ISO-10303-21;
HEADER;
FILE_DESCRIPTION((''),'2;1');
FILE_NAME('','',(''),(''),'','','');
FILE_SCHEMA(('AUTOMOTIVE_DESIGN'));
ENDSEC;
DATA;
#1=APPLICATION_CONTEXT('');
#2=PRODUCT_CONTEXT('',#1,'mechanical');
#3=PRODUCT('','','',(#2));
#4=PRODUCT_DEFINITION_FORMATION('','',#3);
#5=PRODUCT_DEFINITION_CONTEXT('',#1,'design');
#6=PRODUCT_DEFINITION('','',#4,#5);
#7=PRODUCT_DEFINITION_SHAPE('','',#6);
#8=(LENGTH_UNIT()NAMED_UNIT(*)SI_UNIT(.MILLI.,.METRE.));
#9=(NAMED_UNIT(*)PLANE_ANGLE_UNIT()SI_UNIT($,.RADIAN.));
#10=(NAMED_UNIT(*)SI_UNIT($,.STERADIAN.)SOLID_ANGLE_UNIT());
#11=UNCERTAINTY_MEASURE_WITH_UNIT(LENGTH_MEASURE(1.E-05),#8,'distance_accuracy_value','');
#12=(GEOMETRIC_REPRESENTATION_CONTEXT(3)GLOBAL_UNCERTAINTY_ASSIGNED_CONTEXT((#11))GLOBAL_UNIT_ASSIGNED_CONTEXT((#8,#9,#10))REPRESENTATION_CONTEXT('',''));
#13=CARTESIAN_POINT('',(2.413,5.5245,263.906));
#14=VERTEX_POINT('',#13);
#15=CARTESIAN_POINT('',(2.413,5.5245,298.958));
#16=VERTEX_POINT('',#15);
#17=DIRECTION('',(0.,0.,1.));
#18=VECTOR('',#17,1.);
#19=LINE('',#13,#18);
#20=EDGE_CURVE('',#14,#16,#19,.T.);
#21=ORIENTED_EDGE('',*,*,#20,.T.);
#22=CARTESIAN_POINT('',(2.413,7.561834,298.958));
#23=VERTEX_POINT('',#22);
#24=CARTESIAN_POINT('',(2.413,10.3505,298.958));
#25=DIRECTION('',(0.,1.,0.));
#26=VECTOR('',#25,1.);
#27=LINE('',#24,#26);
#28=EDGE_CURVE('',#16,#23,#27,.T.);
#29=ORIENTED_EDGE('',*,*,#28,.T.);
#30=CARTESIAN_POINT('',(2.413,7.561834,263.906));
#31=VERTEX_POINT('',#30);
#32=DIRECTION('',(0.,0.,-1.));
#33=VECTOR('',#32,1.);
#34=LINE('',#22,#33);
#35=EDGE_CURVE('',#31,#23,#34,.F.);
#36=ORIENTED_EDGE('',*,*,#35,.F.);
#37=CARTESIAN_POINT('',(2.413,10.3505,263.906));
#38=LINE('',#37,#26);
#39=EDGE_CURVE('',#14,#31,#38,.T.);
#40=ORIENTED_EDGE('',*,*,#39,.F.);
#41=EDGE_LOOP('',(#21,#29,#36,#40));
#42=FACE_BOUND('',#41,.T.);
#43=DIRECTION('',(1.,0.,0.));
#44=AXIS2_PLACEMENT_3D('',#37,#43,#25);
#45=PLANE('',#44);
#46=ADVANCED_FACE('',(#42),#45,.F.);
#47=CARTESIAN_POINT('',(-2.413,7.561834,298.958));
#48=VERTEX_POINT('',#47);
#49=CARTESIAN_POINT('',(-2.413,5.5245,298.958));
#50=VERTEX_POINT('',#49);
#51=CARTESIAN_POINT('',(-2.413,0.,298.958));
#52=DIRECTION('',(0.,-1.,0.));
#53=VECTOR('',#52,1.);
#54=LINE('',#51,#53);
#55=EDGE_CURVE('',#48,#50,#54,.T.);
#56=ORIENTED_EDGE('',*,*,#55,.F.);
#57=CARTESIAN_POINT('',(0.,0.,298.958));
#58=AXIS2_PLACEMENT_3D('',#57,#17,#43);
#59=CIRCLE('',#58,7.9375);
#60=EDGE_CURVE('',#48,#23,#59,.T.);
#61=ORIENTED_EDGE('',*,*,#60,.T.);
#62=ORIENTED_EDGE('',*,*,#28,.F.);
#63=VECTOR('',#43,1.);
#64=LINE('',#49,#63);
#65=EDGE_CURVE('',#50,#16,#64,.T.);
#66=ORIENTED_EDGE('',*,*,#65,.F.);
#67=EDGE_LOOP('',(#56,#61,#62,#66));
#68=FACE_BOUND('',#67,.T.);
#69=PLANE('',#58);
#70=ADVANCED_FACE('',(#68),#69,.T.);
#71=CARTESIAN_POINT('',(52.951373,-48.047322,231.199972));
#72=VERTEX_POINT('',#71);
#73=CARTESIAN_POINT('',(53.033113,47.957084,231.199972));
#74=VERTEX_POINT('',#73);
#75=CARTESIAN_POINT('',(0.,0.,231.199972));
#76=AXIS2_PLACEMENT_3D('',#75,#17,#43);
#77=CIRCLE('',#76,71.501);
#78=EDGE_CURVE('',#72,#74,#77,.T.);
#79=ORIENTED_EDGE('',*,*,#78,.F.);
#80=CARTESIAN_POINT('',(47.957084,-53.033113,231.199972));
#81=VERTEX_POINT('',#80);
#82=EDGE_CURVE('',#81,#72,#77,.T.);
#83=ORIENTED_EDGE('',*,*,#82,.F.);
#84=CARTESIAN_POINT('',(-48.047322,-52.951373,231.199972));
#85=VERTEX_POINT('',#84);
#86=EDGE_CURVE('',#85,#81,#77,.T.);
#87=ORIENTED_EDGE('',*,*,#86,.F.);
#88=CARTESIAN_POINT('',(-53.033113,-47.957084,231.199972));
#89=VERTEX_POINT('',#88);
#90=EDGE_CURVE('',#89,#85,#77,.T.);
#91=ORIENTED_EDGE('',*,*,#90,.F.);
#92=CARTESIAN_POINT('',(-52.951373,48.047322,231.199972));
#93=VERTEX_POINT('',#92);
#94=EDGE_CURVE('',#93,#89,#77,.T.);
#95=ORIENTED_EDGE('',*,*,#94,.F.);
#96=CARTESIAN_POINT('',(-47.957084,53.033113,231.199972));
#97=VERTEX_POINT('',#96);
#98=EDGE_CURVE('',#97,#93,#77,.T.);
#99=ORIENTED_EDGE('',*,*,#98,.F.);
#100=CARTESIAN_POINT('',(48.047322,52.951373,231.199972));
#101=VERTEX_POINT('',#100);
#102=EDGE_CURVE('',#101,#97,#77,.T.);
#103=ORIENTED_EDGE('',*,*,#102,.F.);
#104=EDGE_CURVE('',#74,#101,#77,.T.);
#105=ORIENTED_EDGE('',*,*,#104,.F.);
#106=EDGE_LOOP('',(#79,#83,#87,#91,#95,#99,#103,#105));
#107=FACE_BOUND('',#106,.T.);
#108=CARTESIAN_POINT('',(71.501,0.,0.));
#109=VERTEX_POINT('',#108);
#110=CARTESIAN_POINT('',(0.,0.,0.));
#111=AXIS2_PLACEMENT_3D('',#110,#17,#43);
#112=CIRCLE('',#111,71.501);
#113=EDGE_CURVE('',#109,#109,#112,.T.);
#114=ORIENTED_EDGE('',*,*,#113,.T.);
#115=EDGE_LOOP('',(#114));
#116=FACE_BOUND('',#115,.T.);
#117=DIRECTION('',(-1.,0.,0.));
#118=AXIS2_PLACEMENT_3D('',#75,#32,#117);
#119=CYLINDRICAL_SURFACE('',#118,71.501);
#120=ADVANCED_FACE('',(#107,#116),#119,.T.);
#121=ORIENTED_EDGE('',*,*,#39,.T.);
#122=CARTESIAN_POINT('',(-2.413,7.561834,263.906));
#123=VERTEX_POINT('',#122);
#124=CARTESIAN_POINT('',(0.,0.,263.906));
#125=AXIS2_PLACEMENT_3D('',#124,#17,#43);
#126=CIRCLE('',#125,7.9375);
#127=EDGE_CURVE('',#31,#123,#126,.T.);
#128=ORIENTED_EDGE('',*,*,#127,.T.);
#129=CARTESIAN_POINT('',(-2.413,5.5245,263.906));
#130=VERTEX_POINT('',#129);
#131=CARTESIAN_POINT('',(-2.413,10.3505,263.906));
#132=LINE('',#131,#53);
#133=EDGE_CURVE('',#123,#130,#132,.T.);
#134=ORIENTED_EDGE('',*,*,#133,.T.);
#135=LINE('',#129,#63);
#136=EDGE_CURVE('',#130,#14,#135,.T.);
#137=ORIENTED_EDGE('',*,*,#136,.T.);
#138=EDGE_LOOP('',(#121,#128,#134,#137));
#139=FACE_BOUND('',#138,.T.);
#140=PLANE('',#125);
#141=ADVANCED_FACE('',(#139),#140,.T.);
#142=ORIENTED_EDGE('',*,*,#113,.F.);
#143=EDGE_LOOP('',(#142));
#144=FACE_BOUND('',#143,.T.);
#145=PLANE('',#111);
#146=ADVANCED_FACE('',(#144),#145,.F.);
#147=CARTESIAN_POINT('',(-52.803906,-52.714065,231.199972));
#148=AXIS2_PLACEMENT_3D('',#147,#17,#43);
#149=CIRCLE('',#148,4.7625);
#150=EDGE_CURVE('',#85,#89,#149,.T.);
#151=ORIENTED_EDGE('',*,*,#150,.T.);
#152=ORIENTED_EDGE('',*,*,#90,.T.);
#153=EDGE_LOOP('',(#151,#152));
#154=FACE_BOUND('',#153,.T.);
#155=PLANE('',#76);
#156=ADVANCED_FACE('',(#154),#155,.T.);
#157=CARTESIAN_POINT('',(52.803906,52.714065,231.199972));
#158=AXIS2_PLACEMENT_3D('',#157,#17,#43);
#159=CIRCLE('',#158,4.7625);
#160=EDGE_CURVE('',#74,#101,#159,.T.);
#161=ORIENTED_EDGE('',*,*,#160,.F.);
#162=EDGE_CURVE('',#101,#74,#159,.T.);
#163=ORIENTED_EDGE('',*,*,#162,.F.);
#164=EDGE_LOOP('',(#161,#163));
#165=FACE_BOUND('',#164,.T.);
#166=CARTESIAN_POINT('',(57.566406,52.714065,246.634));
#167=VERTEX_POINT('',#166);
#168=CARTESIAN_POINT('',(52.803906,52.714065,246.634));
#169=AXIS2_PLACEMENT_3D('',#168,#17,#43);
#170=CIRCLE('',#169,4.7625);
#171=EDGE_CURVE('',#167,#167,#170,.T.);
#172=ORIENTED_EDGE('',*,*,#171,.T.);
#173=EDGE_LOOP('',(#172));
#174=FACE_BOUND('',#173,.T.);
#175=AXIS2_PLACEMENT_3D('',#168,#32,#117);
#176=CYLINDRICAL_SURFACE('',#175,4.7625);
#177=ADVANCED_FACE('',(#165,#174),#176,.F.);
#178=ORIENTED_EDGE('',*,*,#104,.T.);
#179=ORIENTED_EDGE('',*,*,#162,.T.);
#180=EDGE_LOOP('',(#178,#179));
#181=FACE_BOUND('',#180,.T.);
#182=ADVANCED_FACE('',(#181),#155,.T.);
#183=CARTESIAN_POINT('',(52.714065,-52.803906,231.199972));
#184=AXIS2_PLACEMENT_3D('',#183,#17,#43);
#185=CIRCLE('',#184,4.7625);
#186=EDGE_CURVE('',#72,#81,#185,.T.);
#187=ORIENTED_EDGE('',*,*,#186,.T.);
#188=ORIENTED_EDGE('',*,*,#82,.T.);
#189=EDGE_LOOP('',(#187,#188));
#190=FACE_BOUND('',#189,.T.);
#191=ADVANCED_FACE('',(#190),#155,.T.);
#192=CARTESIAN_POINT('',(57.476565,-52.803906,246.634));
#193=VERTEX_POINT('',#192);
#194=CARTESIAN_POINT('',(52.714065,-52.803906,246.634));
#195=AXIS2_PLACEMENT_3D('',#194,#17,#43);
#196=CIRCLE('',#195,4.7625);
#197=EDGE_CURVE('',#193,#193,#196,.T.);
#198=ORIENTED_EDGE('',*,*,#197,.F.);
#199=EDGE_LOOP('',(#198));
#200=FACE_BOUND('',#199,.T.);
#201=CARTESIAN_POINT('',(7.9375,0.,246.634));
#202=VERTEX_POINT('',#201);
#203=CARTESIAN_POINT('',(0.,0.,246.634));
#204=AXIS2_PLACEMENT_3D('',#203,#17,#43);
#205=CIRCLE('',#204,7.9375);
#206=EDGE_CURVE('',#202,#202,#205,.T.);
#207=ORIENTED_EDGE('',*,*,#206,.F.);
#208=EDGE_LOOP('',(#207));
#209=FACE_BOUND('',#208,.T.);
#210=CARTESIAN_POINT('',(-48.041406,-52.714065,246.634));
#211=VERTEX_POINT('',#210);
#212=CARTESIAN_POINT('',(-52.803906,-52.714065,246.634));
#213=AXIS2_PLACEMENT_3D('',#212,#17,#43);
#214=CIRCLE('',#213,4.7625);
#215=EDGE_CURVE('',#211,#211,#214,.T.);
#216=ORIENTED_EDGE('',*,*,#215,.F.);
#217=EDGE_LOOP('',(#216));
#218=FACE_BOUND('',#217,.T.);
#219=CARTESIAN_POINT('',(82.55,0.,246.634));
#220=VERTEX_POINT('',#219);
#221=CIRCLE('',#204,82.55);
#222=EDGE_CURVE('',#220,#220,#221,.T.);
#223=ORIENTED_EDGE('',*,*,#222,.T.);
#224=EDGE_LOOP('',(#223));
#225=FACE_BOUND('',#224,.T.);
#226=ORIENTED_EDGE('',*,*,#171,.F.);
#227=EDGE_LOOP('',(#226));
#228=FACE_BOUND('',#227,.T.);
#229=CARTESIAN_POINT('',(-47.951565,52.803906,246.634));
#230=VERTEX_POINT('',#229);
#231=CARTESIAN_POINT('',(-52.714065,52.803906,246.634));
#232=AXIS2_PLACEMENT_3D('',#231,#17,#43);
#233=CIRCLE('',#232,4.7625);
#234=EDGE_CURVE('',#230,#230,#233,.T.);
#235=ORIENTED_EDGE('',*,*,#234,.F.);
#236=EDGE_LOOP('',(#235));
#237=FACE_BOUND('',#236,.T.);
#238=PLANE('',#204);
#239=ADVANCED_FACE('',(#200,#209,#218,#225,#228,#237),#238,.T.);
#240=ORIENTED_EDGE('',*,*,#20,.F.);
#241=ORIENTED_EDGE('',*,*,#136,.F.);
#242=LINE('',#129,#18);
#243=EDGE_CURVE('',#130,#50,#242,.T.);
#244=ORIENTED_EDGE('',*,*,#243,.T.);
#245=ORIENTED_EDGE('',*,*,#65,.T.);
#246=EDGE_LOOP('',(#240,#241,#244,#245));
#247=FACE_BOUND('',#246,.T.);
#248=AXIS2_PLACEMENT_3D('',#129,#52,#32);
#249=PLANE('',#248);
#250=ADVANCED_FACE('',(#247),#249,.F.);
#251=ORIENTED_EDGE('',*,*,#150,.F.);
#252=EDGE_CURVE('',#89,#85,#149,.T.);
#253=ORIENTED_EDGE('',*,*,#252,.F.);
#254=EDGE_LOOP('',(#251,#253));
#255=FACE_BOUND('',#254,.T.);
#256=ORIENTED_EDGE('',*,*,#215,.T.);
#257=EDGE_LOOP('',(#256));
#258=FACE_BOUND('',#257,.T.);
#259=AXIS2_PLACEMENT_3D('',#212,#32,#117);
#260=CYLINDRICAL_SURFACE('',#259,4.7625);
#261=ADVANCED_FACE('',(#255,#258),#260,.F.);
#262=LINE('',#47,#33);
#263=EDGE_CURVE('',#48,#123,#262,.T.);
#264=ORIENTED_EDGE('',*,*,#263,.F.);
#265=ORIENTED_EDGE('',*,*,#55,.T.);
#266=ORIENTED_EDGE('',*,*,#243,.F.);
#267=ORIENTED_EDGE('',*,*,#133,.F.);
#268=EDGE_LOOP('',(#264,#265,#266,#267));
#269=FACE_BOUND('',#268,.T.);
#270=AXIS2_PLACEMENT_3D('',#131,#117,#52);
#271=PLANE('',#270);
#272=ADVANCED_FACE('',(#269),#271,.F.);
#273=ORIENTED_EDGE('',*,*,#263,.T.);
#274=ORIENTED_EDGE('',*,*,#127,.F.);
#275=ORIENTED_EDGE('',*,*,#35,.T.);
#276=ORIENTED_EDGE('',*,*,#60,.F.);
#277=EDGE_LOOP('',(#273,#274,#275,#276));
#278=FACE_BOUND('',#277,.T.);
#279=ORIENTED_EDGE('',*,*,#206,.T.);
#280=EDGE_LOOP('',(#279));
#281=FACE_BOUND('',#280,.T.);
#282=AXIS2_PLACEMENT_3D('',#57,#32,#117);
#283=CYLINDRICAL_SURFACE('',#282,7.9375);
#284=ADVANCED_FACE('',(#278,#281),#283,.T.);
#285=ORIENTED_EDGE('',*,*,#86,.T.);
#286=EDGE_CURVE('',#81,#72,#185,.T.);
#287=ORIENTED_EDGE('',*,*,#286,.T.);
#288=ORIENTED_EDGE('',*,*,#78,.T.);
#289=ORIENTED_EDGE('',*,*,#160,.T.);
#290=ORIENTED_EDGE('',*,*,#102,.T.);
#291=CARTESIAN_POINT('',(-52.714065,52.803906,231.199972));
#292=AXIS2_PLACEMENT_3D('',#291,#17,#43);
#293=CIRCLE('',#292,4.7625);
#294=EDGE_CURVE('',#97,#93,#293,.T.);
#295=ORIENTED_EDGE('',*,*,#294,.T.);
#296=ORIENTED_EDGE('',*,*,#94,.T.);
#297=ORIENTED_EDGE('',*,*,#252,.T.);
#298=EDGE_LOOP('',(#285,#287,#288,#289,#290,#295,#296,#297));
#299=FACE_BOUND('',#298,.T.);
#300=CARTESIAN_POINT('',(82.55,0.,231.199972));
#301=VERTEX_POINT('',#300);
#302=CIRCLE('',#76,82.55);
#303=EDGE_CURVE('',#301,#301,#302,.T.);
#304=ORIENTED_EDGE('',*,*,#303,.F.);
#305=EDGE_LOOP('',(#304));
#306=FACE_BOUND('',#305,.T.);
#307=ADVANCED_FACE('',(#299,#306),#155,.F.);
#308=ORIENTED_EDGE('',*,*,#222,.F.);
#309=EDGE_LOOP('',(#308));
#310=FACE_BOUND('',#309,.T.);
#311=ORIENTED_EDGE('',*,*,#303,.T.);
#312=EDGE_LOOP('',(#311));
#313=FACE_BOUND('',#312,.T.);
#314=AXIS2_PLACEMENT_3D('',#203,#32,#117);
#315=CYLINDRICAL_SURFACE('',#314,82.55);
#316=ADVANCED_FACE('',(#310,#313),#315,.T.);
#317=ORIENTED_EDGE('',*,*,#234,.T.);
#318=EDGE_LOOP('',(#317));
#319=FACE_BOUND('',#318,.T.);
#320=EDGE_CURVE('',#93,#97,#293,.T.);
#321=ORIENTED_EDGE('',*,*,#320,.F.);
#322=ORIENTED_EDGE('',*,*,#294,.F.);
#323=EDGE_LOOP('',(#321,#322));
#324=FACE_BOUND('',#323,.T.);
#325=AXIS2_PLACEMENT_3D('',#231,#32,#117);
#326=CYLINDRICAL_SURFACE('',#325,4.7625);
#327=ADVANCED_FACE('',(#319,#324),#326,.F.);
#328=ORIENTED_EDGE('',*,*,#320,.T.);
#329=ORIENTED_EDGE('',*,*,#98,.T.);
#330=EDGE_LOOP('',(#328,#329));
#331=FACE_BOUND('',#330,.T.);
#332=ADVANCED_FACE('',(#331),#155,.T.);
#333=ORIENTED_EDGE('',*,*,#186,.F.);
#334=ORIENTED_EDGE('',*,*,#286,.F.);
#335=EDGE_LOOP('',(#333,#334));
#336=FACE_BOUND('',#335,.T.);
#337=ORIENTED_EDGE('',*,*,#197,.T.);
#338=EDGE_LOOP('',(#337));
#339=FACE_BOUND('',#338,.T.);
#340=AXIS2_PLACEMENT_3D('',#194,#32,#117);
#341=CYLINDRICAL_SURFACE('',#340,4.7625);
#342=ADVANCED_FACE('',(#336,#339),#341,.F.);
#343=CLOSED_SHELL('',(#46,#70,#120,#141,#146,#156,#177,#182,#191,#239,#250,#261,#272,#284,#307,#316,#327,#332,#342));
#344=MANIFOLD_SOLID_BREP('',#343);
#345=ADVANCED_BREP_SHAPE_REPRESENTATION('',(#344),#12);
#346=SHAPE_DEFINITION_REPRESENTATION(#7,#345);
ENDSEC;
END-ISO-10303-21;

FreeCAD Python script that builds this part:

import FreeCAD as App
import Part
import Sketcher
Q = App.Units.Quantity


def add_polygon(sketch, points):
    """Adds a closed chain of lines whose ends are joined by coincident constraints."""
    first, n = sketch.GeometryCount, len(points)
    for a, b in zip(points, points[1:] + points[:1]):
        sketch.addGeometry(Part.LineSegment(App.Vector(*a, 0), App.Vector(*b, 0)), False)
    for i in range(n):
        sketch.addConstraint(Sketcher.Constraint("Coincident", first + i, 2, first + (i + 1) % n, 1))

doc = App.newDocument("Part")
body = doc.addObject("PartDesign::Body", "Body")

# Sketch on XY plane
sketch1 = body.newObject("Sketcher::SketchObject", "Sketch")
sketch1.AttachmentSupport = (doc.getObject("XY_Plane"), [""])
sketch1.MapMode = "FlatFace"
sketch1.addGeometry(Part.Circle(App.Vector(0, 0, 0), App.Vector(0, 0, 1), 72), False)
sketch1.addConstraint(Sketcher.Constraint("Coincident", 0, 3, -1, 1))
sketch1.addConstraint(Sketcher.Constraint("Diameter", 0, Q("5.63 in")))
pad1 = body.newObject("PartDesign::Pad", "Pad")
pad1.Profile = sketch1
pad1.Length = 231.199972

# Sketch on XY plane
sketch2 = body.newObject("Sketcher::SketchObject", "Sketch001")
sketch2.AttachmentSupport = (doc.getObject("XY_Plane"), [""])
sketch2.MapMode = "FlatFace"
sketch2.AttachmentOffset = App.Placement(App.Vector(0, 0, 231.199972), App.Rotation())
sketch2.addGeometry(Part.Circle(App.Vector(0, 0, 0), App.Vector(0, 0, 1), 82.5), False)
sketch2.addGeometry(Part.Circle(App.Vector(-52.8, -52.7, 0), App.Vector(0, 0, 1), 4.8), False)
sketch2.addGeometry(Part.Circle(App.Vector(52.7, -52.8, 0), App.Vector(0, 0, 1), 4.8), False)
sketch2.addGeometry(Part.Circle(App.Vector(-52.7, 52.8, 0), App.Vector(0, 0, 1), 4.8), False)
sketch2.addGeometry(Part.Circle(App.Vector(52.8, 52.7, 0), App.Vector(0, 0, 1), 4.8), False)
sketch2.addConstraint(Sketcher.Constraint("Coincident", 0, 3, -1, 1))
sketch2.addConstraint(Sketcher.Constraint("Equal", 1, 2))
sketch2.addConstraint(Sketcher.Constraint("Equal", 2, 3))
sketch2.addConstraint(Sketcher.Constraint("Equal", 3, 4))
sketch2.addConstraint(Sketcher.Constraint("Symmetric", 2, 3, 3, 3, -1, 1))
sketch2.addConstraint(Sketcher.Constraint("Symmetric", 1, 3, 4, 3, -1, 1))
sketch2.addConstraint(Sketcher.Constraint("Diameter", 0, Q("6.5 in")))
sketch2.addConstraint(Sketcher.Constraint("Diameter", 1, Q("0.375 in")))
sketch2.addConstraint(Sketcher.Constraint("DistanceX", 1, 3, 2, 3, 105.517971))
sketch2.addConstraint(Sketcher.Constraint("DistanceY", 2, 3, 1, 3, 0.089841))
sketch2.addConstraint(Sketcher.Constraint("DistanceX", 1, 3, 3, 3, 0.089841))
sketch2.addConstraint(Sketcher.Constraint("DistanceY", 1, 3, 3, 3, 105.517971))
pad2 = body.newObject("PartDesign::Pad", "Pad001")
pad2.Profile = sketch2
pad2.Length = 15.434028

# Sketch on XY plane
sketch3 = body.newObject("Sketcher::SketchObject", "Sketch002")
sketch3.AttachmentSupport = (doc.getObject("XY_Plane"), [""])
sketch3.MapMode = "FlatFace"
sketch3.AttachmentOffset = App.Placement(App.Vector(0, 0, 9.71 * 25.4), App.Rotation())
sketch3.addGeometry(Part.Circle(App.Vector(0, 0, 0), App.Vector(0, 0, 1), 8), False)
sketch3.addConstraint(Sketcher.Constraint("Coincident", 0, 3, -1, 1))
sketch3.addConstraint(Sketcher.Constraint("Diameter", 0, Q("0.625 in")))
pad3 = body.newObject("PartDesign::Pad", "Pad002")
pad3.Profile = sketch3
pad3.Length = Q("2.06 in")

# Sketch on XY plane
sketch4 = body.newObject("Sketcher::SketchObject", "Sketch003")
sketch4.AttachmentSupport = (doc.getObject("XY_Plane"), [""])
sketch4.MapMode = "FlatFace"
sketch4.AttachmentOffset = App.Placement(App.Vector(0, 0, 11.77 * 25.4), App.Rotation())
add_polygon(sketch4, [(-2.4, 10.4), (-2.4, 5.5), (2.4, 5.5), (2.4, 10.4)])  # lines 0-3
sketch4.addConstraint(Sketcher.Constraint("Vertical", 0))
sketch4.addConstraint(Sketcher.Constraint("Horizontal", 1))
sketch4.addConstraint(Sketcher.Constraint("Vertical", 2))
sketch4.addConstraint(Sketcher.Constraint("Horizontal", 3))
sketch4.addConstraint(Sketcher.Constraint("Equal", 3, 0))
sketch4.addConstraint(Sketcher.Constraint("DistanceX", 1, 1, 1, 2, Q("0.19 in")))
sketch4.addConstraint(Sketcher.Constraint("DistanceX", 0, 2, -1, 1, Q("0.095 in")))
sketch4.addConstraint(Sketcher.Constraint("DistanceY", -1, 1, 0, 2, Q("0.2175 in")))
pocket1 = body.newObject("PartDesign::Pocket", "Pocket")
pocket1.Profile = sketch4
pocket1.Length = Q("1.38 in")

doc.recompute()
